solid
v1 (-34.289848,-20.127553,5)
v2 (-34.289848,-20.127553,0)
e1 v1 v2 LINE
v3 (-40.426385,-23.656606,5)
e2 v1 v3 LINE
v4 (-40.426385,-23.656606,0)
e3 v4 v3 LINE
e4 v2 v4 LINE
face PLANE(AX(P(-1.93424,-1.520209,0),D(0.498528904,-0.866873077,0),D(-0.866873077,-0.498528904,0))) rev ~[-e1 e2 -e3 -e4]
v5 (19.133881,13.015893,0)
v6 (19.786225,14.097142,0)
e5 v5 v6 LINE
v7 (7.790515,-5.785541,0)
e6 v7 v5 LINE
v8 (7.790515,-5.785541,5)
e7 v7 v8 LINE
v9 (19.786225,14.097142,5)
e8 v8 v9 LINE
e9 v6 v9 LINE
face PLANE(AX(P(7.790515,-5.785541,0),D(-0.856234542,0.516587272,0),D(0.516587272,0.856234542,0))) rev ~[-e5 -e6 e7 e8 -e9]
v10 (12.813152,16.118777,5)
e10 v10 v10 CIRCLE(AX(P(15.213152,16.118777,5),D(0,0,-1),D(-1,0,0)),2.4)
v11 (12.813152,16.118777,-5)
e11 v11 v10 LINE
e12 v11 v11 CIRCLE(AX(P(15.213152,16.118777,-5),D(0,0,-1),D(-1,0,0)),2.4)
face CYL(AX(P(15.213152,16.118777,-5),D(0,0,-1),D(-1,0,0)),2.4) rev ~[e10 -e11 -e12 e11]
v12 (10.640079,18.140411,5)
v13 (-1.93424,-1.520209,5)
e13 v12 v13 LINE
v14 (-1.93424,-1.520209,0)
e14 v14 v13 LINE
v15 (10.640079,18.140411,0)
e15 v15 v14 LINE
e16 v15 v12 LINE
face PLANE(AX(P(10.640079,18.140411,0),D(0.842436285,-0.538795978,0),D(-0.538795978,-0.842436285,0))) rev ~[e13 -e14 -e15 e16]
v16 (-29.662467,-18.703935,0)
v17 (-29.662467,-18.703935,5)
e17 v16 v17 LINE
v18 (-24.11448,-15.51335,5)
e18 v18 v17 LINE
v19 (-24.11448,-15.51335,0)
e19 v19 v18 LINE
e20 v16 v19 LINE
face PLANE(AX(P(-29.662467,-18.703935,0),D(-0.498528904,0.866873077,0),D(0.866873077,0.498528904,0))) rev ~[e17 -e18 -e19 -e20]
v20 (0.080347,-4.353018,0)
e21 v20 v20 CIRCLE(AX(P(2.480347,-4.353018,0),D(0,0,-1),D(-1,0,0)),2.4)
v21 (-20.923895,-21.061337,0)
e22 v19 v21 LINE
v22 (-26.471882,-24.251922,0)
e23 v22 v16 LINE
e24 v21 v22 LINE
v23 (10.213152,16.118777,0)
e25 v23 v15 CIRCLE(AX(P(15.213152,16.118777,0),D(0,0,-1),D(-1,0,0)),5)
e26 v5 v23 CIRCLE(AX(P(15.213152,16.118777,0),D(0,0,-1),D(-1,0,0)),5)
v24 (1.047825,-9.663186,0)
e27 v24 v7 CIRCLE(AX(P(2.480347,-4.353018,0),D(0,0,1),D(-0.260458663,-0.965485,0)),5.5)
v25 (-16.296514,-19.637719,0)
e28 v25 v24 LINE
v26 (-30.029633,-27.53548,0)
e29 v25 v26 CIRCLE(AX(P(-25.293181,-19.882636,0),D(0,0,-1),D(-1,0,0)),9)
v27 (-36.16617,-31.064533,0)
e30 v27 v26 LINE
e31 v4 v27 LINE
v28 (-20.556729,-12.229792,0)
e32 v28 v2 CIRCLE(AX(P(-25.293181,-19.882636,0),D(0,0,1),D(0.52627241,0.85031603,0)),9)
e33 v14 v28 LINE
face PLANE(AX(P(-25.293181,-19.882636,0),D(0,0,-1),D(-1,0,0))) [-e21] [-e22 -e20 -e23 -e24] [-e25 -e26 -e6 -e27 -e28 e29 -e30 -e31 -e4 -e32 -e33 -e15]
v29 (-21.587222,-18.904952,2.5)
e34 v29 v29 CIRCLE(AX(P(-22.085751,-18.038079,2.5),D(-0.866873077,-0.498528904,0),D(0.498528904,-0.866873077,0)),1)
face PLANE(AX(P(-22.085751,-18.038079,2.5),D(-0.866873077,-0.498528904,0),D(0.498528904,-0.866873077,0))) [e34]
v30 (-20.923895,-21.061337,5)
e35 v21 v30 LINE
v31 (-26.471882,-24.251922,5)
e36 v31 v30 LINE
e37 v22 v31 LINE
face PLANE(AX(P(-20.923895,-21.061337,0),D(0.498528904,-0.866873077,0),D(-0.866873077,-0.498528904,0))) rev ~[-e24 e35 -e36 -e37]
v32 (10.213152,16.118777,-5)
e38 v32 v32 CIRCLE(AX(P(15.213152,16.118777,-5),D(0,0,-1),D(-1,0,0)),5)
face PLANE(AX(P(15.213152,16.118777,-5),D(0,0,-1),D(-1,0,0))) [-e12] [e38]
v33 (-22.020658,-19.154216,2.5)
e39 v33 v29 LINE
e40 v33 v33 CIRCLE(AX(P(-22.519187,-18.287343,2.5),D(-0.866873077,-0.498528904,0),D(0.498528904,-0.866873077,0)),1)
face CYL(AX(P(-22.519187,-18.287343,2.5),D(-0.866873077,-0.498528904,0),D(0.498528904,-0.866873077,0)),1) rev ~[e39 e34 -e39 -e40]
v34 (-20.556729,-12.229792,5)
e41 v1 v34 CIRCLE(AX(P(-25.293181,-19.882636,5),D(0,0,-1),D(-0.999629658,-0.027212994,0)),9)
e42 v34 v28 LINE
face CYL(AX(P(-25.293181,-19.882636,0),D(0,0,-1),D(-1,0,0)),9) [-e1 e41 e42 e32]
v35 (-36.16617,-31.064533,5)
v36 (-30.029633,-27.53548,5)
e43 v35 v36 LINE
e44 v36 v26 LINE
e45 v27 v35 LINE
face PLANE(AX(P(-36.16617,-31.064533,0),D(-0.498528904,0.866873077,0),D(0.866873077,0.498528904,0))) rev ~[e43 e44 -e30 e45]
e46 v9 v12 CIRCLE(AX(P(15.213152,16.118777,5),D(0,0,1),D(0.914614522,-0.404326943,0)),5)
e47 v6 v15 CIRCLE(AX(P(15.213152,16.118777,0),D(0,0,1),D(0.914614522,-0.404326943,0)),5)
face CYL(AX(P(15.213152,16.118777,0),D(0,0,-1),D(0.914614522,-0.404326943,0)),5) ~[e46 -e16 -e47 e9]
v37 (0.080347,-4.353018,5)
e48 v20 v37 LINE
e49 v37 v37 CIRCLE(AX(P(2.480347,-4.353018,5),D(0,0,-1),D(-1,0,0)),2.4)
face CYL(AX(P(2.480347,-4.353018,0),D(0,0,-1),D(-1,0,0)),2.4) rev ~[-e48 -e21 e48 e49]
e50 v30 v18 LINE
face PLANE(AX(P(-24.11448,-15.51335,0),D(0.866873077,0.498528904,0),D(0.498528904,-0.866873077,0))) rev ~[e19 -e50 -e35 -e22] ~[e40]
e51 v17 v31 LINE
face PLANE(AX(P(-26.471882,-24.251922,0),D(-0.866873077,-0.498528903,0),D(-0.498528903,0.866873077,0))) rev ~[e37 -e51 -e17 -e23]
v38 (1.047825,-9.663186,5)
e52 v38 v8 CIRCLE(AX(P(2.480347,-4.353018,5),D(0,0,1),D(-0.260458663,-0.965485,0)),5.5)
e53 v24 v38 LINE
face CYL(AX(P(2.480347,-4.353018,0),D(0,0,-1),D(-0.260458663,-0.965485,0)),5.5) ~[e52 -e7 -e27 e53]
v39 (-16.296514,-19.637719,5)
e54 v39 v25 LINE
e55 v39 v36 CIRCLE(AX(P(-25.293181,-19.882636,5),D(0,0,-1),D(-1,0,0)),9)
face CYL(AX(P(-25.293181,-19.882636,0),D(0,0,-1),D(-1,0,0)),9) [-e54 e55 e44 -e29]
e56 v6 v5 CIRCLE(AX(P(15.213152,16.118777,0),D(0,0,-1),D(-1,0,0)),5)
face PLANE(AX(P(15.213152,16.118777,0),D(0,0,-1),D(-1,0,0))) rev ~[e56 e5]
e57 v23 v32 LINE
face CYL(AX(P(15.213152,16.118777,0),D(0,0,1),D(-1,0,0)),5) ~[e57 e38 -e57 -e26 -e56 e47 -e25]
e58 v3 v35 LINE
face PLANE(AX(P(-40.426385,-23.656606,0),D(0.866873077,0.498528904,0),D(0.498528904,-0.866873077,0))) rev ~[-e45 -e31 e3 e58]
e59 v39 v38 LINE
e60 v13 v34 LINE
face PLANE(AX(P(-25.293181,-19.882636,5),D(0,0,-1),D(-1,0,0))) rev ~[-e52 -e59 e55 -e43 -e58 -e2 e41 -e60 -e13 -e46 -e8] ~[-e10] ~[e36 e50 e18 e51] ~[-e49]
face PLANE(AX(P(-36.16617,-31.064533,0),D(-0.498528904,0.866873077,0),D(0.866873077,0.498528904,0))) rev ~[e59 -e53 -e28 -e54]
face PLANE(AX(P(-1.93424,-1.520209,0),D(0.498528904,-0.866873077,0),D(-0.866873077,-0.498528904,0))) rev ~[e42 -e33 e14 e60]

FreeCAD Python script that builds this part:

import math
import FreeCAD as App
import Part
import Sketcher

V = App.Vector

doc = App.newDocument("Part")
body = doc.addObject("PartDesign::Body", "Body")

sketch1 = doc.addObject("Sketcher::SketchObject", "Sketch")
body.addObject(sketch1)
sketch1.AttachmentSupport = (doc.XY_Plane, [""])
sketch1.MapMode = "FlatFace"
sketch1.addGeometry([
    Part.ArcOfCircle(Part.Circle(V(2.480347, -4.353018, 0), V(0, 0, 1), 5.5), math.radians(-105.097279), math.radians(-15.097279)),
    Part.LineSegment(V(7.790515, -5.785541, 0), V(19.786225, 14.097142, 0)),
    Part.ArcOfCircle(Part.Circle(V(15.213152, 16.118777, 0), V(0, 0, 1), 5), math.radians(-23.848957), math.radians(156.151043)),
    Part.LineSegment(V(10.640079, 18.140411, 0), V(-1.93424, -1.520209, 0)),
    Part.LineSegment(V(-1.93424, -1.520209, 0), V(-40.426385, -23.656606, 0)),
    Part.LineSegment(V(-40.426385, -23.656606, 0), V(-36.16617, -31.064533, 0)),
    Part.LineSegment(V(-36.16617, -31.064533, 0), V(1.047825, -9.663186, 0)),
], False)
sketch1.addConstraint([
    Sketcher.Constraint("Coincident", 0, 2, 1, 1),
    Sketcher.Constraint("Coincident", 1, 2, 2, 1),
    Sketcher.Constraint("Coincident", 2, 2, 3, 1),
    Sketcher.Constraint("Coincident", 3, 2, 4, 1),
    Sketcher.Constraint("Coincident", 4, 2, 5, 1),
    Sketcher.Constraint("Coincident", 5, 2, 6, 1),
    Sketcher.Constraint("Coincident", 6, 2, 0, 1),
    Sketcher.Constraint("Radius", 2, 5.0),
    Sketcher.Constraint("Radius", 0, 5.5),
    Sketcher.Constraint("Distance", 6, 42.929),
    Sketcher.Constraint("DistanceX", 4, 2, 0, 2, 48.2169),
    Sketcher.Constraint("Distance", 1, 23.221071),
    Sketcher.Constraint("DistanceY", 0, 3, -1, 1, 4.353018),
    Sketcher.Constraint("DistanceX", -1, 1, 2, 3, 15.213152),
    Sketcher.Constraint("DistanceY", 0, 2, -1, 1, 5.785541),
    Sketcher.Constraint("DistanceX", -1, 1, 2, 2, 10.640079),
    Sketcher.Constraint("DistanceY", -1, 1, 2, 2, 18.140411),
    Sketcher.Constraint("DistanceX", 3, 2, -1, 1, 1.93424),
    Sketcher.Constraint("DistanceY", 3, 2, -1, 1, 1.520209),
    Sketcher.Constraint("DistanceX", 5, 2, -1, 1, 36.16617),
    Sketcher.Constraint("DistanceX", 0, 2, 1, 2, 11.99571),
    Sketcher.Constraint("DistanceX", 6, 2, 0, 2, 6.74269),
    Sketcher.Constraint("Distance", 4, 44.403438),
])
pad1 = doc.addObject("PartDesign::Pad", "Pad")
body.addObject(pad1)
pad1.Profile = sketch1
pad1.Length = 5

sketch2 = doc.addObject("Sketcher::SketchObject", "Sketch001")
body.addObject(sketch2)
sketch2.AttachmentSupport = (doc.XY_Plane, [""])
sketch2.MapMode = "FlatFace"
sketch2.addGeometry(Part.Circle(V(-25, -20, 0), V(0, 0, 1), 9), False)
sketch2.addConstraint([
    Sketcher.Constraint("Diameter", 0, 18.0),
    Sketcher.Constraint("DistanceX", 0, 3, -1, 1, 25.293181),
    Sketcher.Constraint("DistanceY", 0, 3, -1, 1, 19.882636),
])
pad2 = doc.addObject("PartDesign::Pad", "Pad001")
body.addObject(pad2)
pad2.Profile = sketch2
pad2.Length = 5

sketch3 = doc.addObject("Sketcher::SketchObject", "Sketch002")
body.addObject(sketch3)
sketch3.AttachmentSupport = (doc.XY_Plane, [""])
sketch3.MapMode = "FlatFace"
sketch3.addGeometry([
    Part.LineSegment(V(-26, -24, 0), V(-30, -19, 0)),
    Part.LineSegment(V(-30, -19, 0), V(-24, -16, 0)),
    Part.LineSegment(V(-24, -16, 0), V(-21, -21, 0)),
    Part.LineSegment(V(-21, -21, 0), V(-26, -24, 0)),
], False)
sketch3.addConstraint([
    Sketcher.Constraint("Coincident", 0, 2, 1, 1),
    Sketcher.Constraint("Coincident", 1, 2, 2, 1),
    Sketcher.Constraint("Coincident", 2, 2, 3, 1),
    Sketcher.Constraint("Coincident", 3, 2, 0, 1),
    Sketcher.Constraint("Perpendicular", 0, 1),
    Sketcher.Constraint("Perpendicular", 1, 2),
    Sketcher.Constraint("Perpendicular", 2, 3),
    Sketcher.Constraint("Equal", 0, 1),
    Sketcher.Constraint("Distance", 0, 6.4),
    Sketcher.Constraint("DistanceX", 1, 2, -1, 1, 24.11448),
    Sketcher.Constraint("DistanceY", 1, 2, -1, 1, 15.51335),
    Sketcher.Constraint("DistanceX", 0, 2, -1, 1, 29.662467),
])
pocket1 = doc.addObject("PartDesign::Pocket", "Pocket")
body.addObject(pocket1)
pocket1.Profile = sketch3
pocket1.Type = "UpToFirst"
pocket1.Reversed = True

sketch4 = doc.addObject("Sketcher::SketchObject", "Sketch003")
body.addObject(sketch4)
sketch4.Placement = App.Placement(V(-24.825551, -14.276894, 0), App.Rotation(V(0, 0, 1), V(-0.498528904, 0.866873077, 0), V(-0.866873077, -0.498528904, 0), "ZXY"))
sketch4.addGeometry(Part.Circle(V(2.5, -4.6, 0), V(0, 0, 1), 1), False)
sketch4.addConstraint([
    Sketcher.Constraint("Diameter", 0, 2.0),
    Sketcher.Constraint("DistanceX", -1, 1, 0, 3, 2.5),
    Sketcher.Constraint("DistanceY", 0, 3, -1, 1, 4.62634),
])
pocket2 = doc.addObject("PartDesign::Pocket", "Pocket001")
body.addObject(pocket2)
pocket2.Profile = sketch4
pocket2.Length = 0.5

sketch5 = doc.addObject("Sketcher::SketchObject", "Sketch004")
body.addObject(sketch5)
sketch5.AttachmentSupport = (doc.XY_Plane, [""])
sketch5.MapMode = "FlatFace"
sketch5.addGeometry(Part.Circle(V(15, 16, 0), V(0, 0, 1), 5), False)
sketch5.addConstraint([
    Sketcher.Constraint("Diameter", 0, 10.0),
    Sketcher.Constraint("DistanceX", -1, 1, 0, 3, 15.213152),
    Sketcher.Constraint("DistanceY", -1, 1, 0, 3, 16.118777),
])
pad3 = doc.addObject("PartDesign::Pad", "Pad002")
body.addObject(pad3)
pad3.Profile = sketch5
pad3.Length = 5
pad3.Reversed = True

sketch6 = doc.addObject("Sketcher::SketchObject", "Sketch005")
body.addObject(sketch6)
sketch6.AttachmentSupport = (doc.XY_Plane, [""])
sketch6.MapMode = "FlatFace"
sketch6.AttachmentOffset = App.Placement(V(0, 0, -5), App.Rotation())
sketch6.addGeometry(Part.Circle(V(15.2, 16.1, 0), V(0, 0, 1), 2.4), False)
sketch6.addConstraint([
    Sketcher.Constraint("Diameter", 0, 4.8),
    Sketcher.Constraint("DistanceX", -1, 1, 0, 3, 15.213152),
    Sketcher.Constraint("DistanceY", -1, 1, 0, 3, 16.118777),
])
pocket3 = doc.addObject("PartDesign::Pocket", "Pocket002")
body.addObject(pocket3)
pocket3.Profile = sketch6
pocket3.Type = "UpToFirst"
pocket3.Reversed = True

sketch7 = doc.addObject("Sketcher::SketchObject", "Sketch006")
body.addObject(sketch7)
sketch7.AttachmentSupport = (doc.XY_Plane, [""])
sketch7.MapMode = "FlatFace"
sketch7.addGeometry(Part.Circle(V(2.5, -4.4, 0), V(0, 0, 1), 2.4), False)
sketch7.addConstraint([
    Sketcher.Constraint("Diameter", 0, 4.8),
    Sketcher.Constraint("DistanceY", 0, 3, -1, 1, 4.353018),
    Sketcher.Constraint("DistanceX", -1, 1, 0, 3, 2.480347),
])
pocket4 = doc.addObject("PartDesign::Pocket", "Pocket003")
body.addObject(pocket4)
pocket4.Profile = sketch7
pocket4.Type = "UpToFirst"
pocket4.Reversed = True

doc.recompute()
